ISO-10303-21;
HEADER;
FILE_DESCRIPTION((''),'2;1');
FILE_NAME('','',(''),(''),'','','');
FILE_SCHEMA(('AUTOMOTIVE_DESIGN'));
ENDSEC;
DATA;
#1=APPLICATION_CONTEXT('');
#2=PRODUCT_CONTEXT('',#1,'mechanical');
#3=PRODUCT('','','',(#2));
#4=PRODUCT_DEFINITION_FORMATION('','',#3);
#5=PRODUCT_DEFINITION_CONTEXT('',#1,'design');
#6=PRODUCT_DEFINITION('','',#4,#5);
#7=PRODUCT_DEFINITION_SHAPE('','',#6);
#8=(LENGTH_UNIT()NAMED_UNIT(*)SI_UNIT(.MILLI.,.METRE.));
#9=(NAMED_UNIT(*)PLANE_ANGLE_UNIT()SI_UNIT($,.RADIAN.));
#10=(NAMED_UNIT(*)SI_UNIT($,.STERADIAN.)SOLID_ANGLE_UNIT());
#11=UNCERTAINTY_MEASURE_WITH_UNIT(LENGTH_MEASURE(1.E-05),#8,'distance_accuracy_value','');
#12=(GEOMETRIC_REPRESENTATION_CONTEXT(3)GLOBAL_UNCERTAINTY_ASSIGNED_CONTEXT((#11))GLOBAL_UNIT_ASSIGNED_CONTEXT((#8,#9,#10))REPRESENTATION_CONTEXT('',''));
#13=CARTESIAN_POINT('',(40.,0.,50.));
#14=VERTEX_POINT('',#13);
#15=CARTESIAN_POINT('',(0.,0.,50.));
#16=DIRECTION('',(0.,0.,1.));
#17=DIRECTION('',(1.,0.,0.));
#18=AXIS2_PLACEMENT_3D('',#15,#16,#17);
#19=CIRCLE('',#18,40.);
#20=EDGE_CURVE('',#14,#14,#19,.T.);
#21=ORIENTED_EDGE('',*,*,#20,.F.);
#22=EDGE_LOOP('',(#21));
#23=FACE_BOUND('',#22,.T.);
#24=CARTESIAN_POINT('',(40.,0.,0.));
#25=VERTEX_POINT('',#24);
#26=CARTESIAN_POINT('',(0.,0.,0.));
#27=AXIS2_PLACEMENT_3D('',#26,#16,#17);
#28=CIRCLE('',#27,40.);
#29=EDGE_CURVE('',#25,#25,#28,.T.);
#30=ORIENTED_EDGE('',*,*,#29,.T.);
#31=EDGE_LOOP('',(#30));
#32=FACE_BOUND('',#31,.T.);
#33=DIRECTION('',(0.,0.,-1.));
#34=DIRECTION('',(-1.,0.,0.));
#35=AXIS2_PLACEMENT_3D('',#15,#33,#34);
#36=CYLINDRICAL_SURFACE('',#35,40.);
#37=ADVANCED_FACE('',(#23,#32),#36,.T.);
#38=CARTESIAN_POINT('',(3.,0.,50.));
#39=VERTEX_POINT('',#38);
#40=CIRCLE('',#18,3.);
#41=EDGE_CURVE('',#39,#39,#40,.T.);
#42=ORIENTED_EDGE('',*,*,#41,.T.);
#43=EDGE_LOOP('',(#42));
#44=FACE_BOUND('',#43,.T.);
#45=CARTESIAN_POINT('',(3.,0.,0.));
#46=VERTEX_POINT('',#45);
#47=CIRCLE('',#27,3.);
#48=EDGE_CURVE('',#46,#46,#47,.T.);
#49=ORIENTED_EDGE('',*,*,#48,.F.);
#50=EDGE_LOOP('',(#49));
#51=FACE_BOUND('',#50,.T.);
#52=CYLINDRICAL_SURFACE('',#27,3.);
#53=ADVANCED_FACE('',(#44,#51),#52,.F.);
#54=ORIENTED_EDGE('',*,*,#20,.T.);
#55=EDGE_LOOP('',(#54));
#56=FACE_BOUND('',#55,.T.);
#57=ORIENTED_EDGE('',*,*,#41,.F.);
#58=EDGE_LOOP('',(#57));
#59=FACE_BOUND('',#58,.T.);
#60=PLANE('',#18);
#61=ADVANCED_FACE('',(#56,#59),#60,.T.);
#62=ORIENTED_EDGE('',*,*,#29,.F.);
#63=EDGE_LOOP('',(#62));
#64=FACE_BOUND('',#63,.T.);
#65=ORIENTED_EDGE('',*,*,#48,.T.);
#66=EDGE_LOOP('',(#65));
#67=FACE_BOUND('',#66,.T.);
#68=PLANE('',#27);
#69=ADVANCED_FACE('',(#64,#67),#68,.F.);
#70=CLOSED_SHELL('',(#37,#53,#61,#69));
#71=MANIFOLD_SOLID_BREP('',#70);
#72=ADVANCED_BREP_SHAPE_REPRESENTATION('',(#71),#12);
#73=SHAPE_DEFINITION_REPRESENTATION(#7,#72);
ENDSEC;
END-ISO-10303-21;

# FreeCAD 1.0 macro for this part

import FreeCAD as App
import Part
import Sketcher

V = App.Vector
Q = App.Units.Quantity

doc = App.newDocument("Part")
params = doc.addObject("Spreadsheet::Sheet", "Params")
for row, (alias, value) in enumerate([
    ("sketch1_diameter", "80 mm"),
    ("pad1_length", "50 mm"),
    ("sketch2_diameter", "6 mm"),
], start=1):
    params.set(f"A{row}", alias)
    params.set(f"B{row}", "=" + value)
    params.setAlias(f"B{row}", alias)

body = doc.addObject("PartDesign::Body", "Body")

# Sketch on XY plane
sketch1 = body.newObject("Sketcher::SketchObject", "Sketch")
sketch1.AttachmentSupport = (doc.getObject("XY_Plane"), [""])
sketch1.MapMode = "FlatFace"
sketch1.addGeometry(Part.Circle(V(0, 0, 0), V(0, 0, 1), 40), False)
sketch1.addConstraint([
    Sketcher.Constraint("Coincident", 0, 3, -1, 1),
    Sketcher.Constraint("Diameter", 0, Q("80 mm")),
])
sketch1.setExpression("Constraints[1]", "Params.sketch1_diameter")
pad1 = body.newObject("PartDesign::Pad", "Pad")
pad1.Profile = sketch1
pad1.setExpression("Length", "Params.pad1_length")

# Sketch on XY plane
sketch2 = body.newObject("Sketcher::SketchObject", "Sketch001")
sketch2.AttachmentSupport = (doc.getObject("XY_Plane"), [""])
sketch2.MapMode = "FlatFace"
sketch2.AttachmentOffset = App.Placement(V(0, 0, 50), App.Rotation())
sketch2.addGeometry(Part.Circle(V(0, 0, 0), V(0, 0, 1), 3), False)
sketch2.addConstraint([
    Sketcher.Constraint("Coincident", 0, 3, -1, 1),
    Sketcher.Constraint("Diameter", 0, Q("6 mm")),
])
sketch2.setExpression("Constraints[1]", "Params.sketch2_diameter")
pocket1 = body.newObject("PartDesign::Pocket", "Pocket")
pocket1.Profile = sketch2
pocket1.Type = "ThroughAll"

doc.recompute()
